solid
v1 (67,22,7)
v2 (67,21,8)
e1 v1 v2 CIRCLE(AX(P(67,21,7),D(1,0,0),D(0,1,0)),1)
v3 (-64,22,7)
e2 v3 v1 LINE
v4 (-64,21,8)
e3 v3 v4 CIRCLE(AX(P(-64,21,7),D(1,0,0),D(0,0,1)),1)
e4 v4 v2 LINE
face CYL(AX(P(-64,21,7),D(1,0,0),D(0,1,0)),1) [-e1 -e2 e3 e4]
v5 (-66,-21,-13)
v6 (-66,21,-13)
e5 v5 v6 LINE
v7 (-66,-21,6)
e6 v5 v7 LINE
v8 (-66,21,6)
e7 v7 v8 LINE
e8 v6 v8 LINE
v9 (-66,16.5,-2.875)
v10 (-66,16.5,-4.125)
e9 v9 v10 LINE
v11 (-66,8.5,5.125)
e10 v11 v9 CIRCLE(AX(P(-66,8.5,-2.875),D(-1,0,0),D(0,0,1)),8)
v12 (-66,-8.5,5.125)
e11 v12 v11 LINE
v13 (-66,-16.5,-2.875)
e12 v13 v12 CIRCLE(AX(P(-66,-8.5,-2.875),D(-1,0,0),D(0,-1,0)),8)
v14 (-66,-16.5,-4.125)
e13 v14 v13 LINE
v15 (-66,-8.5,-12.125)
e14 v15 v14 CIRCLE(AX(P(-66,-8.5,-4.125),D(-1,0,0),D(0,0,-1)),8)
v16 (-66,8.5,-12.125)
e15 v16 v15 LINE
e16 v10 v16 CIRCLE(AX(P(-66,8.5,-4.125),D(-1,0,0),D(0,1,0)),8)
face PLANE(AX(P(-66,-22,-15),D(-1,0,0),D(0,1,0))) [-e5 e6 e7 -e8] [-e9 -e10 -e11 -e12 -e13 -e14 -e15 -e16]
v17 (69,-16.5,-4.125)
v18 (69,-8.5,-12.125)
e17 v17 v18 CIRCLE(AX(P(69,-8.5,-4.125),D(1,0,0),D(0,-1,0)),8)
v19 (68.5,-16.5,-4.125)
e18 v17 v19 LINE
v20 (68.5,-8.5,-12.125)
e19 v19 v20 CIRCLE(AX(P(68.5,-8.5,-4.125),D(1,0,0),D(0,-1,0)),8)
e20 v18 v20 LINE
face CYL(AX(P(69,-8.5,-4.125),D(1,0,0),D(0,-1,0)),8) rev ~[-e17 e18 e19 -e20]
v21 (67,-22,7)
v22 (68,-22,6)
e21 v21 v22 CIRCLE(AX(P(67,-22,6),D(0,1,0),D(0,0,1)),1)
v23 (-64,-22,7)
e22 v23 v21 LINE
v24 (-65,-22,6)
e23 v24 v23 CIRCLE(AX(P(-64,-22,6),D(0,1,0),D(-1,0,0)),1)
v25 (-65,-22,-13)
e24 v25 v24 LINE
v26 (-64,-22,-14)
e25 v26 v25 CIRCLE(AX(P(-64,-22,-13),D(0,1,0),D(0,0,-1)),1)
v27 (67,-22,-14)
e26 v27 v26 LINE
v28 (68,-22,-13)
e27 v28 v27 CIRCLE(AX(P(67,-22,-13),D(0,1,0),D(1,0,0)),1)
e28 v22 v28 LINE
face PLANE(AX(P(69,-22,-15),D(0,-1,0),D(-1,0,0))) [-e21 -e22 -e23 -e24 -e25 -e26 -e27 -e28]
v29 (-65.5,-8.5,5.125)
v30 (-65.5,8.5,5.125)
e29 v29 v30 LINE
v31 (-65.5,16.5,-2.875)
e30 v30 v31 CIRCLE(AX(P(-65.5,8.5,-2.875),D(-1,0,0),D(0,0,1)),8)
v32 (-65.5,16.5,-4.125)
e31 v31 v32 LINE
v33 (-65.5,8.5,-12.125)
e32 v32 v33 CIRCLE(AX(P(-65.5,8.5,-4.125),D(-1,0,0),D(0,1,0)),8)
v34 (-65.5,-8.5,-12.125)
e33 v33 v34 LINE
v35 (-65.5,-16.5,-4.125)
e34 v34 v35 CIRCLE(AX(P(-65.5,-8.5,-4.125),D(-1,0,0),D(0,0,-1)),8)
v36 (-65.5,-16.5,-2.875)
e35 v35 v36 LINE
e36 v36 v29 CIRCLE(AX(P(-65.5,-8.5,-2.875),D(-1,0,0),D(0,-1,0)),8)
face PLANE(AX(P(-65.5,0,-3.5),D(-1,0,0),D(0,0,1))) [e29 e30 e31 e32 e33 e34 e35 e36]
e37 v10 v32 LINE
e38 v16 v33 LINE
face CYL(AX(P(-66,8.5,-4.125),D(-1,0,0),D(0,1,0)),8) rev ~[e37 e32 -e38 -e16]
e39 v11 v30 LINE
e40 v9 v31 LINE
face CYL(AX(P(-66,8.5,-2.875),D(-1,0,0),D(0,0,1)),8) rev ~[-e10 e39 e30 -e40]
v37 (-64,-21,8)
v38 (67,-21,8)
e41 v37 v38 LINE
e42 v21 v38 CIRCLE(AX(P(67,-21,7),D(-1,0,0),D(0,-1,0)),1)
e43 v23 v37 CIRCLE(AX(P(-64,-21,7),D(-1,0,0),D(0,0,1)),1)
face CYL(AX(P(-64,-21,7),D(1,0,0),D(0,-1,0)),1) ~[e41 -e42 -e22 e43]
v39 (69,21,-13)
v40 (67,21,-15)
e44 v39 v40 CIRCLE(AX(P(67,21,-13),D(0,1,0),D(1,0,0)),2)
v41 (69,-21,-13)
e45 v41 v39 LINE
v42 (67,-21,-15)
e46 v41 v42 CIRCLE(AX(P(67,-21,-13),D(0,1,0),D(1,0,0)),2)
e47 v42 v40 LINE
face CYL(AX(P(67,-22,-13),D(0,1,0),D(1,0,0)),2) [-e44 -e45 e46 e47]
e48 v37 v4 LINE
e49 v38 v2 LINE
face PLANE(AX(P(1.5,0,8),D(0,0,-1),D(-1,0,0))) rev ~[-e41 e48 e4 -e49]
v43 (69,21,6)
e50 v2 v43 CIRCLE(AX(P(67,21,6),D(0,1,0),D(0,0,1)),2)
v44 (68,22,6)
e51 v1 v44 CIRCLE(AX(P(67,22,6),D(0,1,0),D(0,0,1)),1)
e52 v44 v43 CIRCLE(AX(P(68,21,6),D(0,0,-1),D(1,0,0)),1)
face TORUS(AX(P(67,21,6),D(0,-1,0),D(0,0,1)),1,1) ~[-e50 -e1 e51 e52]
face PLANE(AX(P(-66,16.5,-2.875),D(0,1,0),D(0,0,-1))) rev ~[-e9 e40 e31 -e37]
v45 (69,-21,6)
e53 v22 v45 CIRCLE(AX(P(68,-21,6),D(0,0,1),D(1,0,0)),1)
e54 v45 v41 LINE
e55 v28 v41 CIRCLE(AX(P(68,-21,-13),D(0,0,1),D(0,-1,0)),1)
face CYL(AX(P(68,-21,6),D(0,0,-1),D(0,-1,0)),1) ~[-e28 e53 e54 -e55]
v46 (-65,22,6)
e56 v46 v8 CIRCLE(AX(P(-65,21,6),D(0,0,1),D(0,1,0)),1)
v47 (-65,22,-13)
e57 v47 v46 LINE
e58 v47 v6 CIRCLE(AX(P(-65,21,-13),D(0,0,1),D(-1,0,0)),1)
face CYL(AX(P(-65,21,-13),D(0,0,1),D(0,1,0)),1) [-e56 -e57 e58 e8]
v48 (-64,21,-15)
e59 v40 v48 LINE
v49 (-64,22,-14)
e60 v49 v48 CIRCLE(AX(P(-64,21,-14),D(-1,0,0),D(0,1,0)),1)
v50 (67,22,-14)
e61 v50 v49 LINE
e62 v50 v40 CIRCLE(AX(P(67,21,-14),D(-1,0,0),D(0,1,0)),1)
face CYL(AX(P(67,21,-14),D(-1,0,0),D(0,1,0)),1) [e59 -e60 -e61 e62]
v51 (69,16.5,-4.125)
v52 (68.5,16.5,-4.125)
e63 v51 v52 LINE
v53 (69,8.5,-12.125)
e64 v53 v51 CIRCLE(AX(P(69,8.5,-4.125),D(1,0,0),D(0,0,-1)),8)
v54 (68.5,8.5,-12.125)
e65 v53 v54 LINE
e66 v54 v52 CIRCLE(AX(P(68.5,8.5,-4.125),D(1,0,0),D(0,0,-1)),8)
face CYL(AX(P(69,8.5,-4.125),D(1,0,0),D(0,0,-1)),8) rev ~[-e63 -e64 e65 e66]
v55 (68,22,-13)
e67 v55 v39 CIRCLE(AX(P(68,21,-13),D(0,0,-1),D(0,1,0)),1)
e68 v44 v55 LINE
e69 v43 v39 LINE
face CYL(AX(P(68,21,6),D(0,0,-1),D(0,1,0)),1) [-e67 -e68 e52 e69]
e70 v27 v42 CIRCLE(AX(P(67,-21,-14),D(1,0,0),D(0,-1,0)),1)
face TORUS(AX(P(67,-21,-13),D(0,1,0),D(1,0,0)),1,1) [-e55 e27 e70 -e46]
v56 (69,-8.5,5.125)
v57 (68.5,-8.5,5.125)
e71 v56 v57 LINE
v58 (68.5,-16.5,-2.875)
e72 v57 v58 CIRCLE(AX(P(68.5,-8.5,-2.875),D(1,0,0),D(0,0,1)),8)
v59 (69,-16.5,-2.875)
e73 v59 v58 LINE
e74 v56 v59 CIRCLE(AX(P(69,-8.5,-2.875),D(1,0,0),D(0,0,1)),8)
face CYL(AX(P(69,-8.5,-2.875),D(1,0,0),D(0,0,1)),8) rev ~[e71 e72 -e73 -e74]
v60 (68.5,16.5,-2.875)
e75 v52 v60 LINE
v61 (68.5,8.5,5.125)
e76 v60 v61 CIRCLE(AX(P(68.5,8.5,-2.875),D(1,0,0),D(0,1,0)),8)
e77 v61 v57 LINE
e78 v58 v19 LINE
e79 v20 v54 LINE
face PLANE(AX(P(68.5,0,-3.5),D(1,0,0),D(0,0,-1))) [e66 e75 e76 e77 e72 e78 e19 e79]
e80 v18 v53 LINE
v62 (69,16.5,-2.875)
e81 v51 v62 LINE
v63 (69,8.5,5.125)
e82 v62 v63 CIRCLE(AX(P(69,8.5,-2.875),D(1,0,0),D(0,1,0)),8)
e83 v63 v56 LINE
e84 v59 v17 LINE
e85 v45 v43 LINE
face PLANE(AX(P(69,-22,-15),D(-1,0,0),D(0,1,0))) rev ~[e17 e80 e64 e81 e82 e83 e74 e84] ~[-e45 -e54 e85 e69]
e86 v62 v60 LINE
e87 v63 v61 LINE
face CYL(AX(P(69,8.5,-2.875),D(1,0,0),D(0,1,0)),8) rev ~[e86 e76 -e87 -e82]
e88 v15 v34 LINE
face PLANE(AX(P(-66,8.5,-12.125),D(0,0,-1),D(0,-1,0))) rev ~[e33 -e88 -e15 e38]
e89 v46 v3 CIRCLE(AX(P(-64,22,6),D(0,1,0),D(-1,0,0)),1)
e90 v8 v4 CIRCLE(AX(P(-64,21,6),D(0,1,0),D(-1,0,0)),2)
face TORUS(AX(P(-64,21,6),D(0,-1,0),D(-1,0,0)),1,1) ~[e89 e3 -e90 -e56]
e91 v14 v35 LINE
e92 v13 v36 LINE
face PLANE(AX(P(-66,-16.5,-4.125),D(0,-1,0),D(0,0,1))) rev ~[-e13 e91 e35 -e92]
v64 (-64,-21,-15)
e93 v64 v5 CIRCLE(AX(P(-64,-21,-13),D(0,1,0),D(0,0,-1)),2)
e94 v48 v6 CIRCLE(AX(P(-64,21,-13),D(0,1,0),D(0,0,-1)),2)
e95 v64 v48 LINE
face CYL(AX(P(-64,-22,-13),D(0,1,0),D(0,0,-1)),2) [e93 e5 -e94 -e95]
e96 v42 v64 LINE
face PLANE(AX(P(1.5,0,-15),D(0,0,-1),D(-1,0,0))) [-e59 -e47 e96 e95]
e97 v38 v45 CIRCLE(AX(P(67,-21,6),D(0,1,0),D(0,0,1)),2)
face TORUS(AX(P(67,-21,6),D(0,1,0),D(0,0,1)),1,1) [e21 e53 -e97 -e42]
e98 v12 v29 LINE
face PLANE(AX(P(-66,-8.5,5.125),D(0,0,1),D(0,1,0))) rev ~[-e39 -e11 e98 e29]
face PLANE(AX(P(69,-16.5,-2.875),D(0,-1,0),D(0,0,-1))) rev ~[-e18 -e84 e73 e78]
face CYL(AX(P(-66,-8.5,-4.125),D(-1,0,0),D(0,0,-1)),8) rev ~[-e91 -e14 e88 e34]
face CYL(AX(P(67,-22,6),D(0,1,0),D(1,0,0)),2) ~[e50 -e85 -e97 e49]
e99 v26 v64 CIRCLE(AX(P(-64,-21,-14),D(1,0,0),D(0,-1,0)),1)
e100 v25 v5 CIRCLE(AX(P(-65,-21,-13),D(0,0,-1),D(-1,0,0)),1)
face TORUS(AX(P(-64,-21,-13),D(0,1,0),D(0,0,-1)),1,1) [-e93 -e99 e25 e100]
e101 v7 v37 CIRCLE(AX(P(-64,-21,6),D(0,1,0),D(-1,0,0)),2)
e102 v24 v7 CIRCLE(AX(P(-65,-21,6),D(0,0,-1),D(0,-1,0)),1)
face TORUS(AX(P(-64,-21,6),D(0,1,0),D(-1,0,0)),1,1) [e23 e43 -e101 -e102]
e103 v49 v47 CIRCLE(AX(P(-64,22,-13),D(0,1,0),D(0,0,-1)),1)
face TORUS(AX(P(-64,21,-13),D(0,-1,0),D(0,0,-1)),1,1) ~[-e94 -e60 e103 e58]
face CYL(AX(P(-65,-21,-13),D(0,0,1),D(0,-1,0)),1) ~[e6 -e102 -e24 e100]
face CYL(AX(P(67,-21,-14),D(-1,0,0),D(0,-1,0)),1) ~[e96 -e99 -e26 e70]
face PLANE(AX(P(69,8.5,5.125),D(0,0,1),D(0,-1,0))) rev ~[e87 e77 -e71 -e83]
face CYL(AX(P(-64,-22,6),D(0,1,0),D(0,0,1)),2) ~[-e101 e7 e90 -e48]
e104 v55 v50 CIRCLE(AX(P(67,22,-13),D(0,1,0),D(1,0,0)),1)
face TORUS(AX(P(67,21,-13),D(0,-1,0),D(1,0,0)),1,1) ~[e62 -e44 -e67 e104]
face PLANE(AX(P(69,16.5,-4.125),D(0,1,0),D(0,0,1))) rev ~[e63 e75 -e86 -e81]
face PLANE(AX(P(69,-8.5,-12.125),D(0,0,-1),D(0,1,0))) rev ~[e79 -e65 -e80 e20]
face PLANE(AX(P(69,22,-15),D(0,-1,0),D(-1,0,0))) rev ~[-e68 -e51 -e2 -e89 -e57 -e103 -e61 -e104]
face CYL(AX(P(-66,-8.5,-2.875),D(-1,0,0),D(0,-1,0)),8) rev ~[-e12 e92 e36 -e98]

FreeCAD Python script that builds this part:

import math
import FreeCAD as App
import Part
import Sketcher
from FreeCAD import Vector
Q = App.Units.Quantity


def edges_at(feature, points):
    """Names of the edges that pass closest to the given points."""
    edges = feature.Shape.Edges
    near = lambda p: min(range(len(edges)), key=lambda i: edges[i].distToShape(Part.Vertex(*p))[0])
    return sorted({f"Edge{near(p) + 1}" for p in points})

doc = App.newDocument("Part")
body = doc.addObject("PartDesign::Body", "Body")

sketch1 = doc.addObject("Sketcher::SketchObject", "Sketch")
body.addObject(sketch1)
sketch1.AttachmentSupport = (doc.XY_Plane, [""])
sketch1.MapMode = "FlatFace"
sketch1.AttachmentOffset = App.Placement(Vector(0, 0, -15), App.Rotation())
sketch1.addGeometry([
    Part.LineSegment(Vector(69, 22, 0), Vector(69, -22, 0)),
    Part.LineSegment(Vector(69, -22, 0), Vector(-66, -22, 0)),
    Part.LineSegment(Vector(-66, -22, 0), Vector(-66, 22, 0)),
    Part.LineSegment(Vector(-66, 22, 0), Vector(69, 22, 0)),
], False)
sketch1.addConstraint([
    Sketcher.Constraint("Coincident", 0, 2, 1, 1),
    Sketcher.Constraint("Coincident", 1, 2, 2, 1),
    Sketcher.Constraint("Coincident", 2, 2, 3, 1),
    Sketcher.Constraint("Coincident", 3, 2, 0, 1),
    Sketcher.Constraint("Vertical", 0),
    Sketcher.Constraint("Horizontal", 1),
    Sketcher.Constraint("Vertical", 2),
    Sketcher.Constraint("Horizontal", 3),
    Sketcher.Constraint("DistanceX", 1, 2, 1, 1, Q("135 mm")),
    Sketcher.Constraint("DistanceY", 0, 2, 0, 1, Q("44 mm")),
    Sketcher.Constraint("DistanceX", -1, 1, 0, 2, Q("69 mm")),
    Sketcher.Constraint("DistanceY", 0, 2, -1, 1, Q("22 mm")),
])
pad1 = doc.addObject("PartDesign::Pad", "Pad")
body.addObject(pad1)
pad1.Profile = sketch1
pad1.Length = 23

sketch2 = doc.addObject("Sketcher::SketchObject", "Sketch001")
body.addObject(sketch2)
sketch2.AttachmentSupport = (doc.YZ_Plane, [""])
sketch2.MapMode = "FlatFace"
sketch2.AttachmentOffset = App.Placement(Vector(0, 0, 69), App.Rotation())
sketch2.addGeometry([
    Part.LineSegment(Vector(8.5, 5.125, 0), Vector(-8.5, 5.125, 0)),
    Part.ArcOfCircle(Part.Circle(Vector(-8.5, -2.875, 0), Vector(0, 0, 1), 8), math.radians(90), math.radians(180)),
    Part.LineSegment(Vector(-16.5, -2.875, 0), Vector(-16.5, -4.125, 0)),
    Part.ArcOfCircle(Part.Circle(Vector(-8.5, -4.125, 0), Vector(0, 0, 1), 8), math.radians(-180), math.radians(-90)),
    Part.LineSegment(Vector(-8.5, -12.125, 0), Vector(8.5, -12.125, 0)),
    Part.ArcOfCircle(Part.Circle(Vector(8.5, -4.125, 0), Vector(0, 0, 1), 8), math.radians(-90), math.radians(0)),
    Part.LineSegment(Vector(16.5, -4.125, 0), Vector(16.5, -2.875, 0)),
    Part.ArcOfCircle(Part.Circle(Vector(8.5, -2.875, 0), Vector(0, 0, 1), 8), math.radians(0), math.radians(90)),
], False)
sketch2.addConstraint([
    Sketcher.Constraint("Tangent", 0, 2, 1, 1),
    Sketcher.Constraint("Tangent", 1, 2, 2, 1),
    Sketcher.Constraint("Tangent", 2, 2, 3, 1),
    Sketcher.Constraint("Tangent", 3, 2, 4, 1),
    Sketcher.Constraint("Tangent", 4, 2, 5, 1),
    Sketcher.Constraint("Tangent", 5, 2, 6, 1),
    Sketcher.Constraint("Tangent", 6, 2, 7, 1),
    Sketcher.Constraint("Tangent", 7, 2, 0, 1),
    Sketcher.Constraint("Horizontal", 0),
    Sketcher.Constraint("Vertical", 2),
    Sketcher.Constraint("Horizontal", 4),
    Sketcher.Constraint("Vertical", 6),
    Sketcher.Constraint("Equal", 1, 3),
    Sketcher.Constraint("Equal", 3, 5),
    Sketcher.Constraint("Equal", 5, 7),
    Sketcher.Constraint("Radius", 1, Q("8 mm")),
    Sketcher.Constraint("DistanceX", 0, 2, 0, 1, Q("17 mm")),
    Sketcher.Constraint("DistanceY", 2, 2, 2, 1, Q("1.25 mm")),
    Sketcher.Constraint("DistanceX", 1, 3, -1, 1, Q("8.5 mm")),
    Sketcher.Constraint("DistanceY", 1, 3, -1, 1, Q("2.875 mm")),
])
pocket1 = doc.addObject("PartDesign::Pocket", "Pocket")
body.addObject(pocket1)
pocket1.Profile = sketch2
pocket1.Length = 0.5

sketch3 = doc.addObject("Sketcher::SketchObject", "Sketch002")
body.addObject(sketch3)
sketch3.AttachmentSupport = (doc.YZ_Plane, [""])
sketch3.MapMode = "FlatFace"
sketch3.AttachmentOffset = App.Placement(Vector(0, 0, -66), App.Rotation())
sketch3.addGeometry([
    Part.LineSegment(Vector(16.5, -2.875, 0), Vector(16.5, -4.125, 0)),
    Part.ArcOfCircle(Part.Circle(Vector(8.5, -4.125, 0), Vector(0, 0, 1), 8), math.radians(-90), math.radians(0)),
    Part.LineSegment(Vector(8.5, -12.125, 0), Vector(-8.5, -12.125, 0)),
    Part.ArcOfCircle(Part.Circle(Vector(-8.5, -4.125, 0), Vector(0, 0, 1), 8), math.radians(-180), math.radians(-90)),
    Part.LineSegment(Vector(-16.5, -4.125, 0), Vector(-16.5, -2.875, 0)),
    Part.ArcOfCircle(Part.Circle(Vector(-8.5, -2.875, 0), Vector(0, 0, 1), 8), math.radians(90), math.radians(180)),
    Part.LineSegment(Vector(-8.5, 5.125, 0), Vector(8.5, 5.125, 0)),
    Part.ArcOfCircle(Part.Circle(Vector(8.5, -2.875, 0), Vector(0, 0, 1), 8), math.radians(0), math.radians(90)),
], False)
sketch3.addConstraint([
    Sketcher.Constraint("Tangent", 0, 2, 1, 2),
    Sketcher.Constraint("Tangent", 1, 1, 2, 1),
    Sketcher.Constraint("Tangent", 2, 2, 3, 2),
    Sketcher.Constraint("Tangent", 3, 1, 4, 1),
    Sketcher.Constraint("Tangent", 4, 2, 5, 2),
    Sketcher.Constraint("Tangent", 5, 1, 6, 1),
    Sketcher.Constraint("Tangent", 6, 2, 7, 2),
    Sketcher.Constraint("Tangent", 7, 1, 0, 1),
    Sketcher.Constraint("Vertical", 0),
    Sketcher.Constraint("Horizontal", 2),
    Sketcher.Constraint("Vertical", 4),
    Sketcher.Constraint("Horizontal", 6),
    Sketcher.Constraint("Equal", 1, 3),
    Sketcher.Constraint("Equal", 3, 5),
    Sketcher.Constraint("Equal", 5, 7),
    Sketcher.Constraint("Radius", 1, Q("8 mm")),
    Sketcher.Constraint("DistanceX", 2, 2, 2, 1, Q("17 mm")),
    Sketcher.Constraint("DistanceY", 0, 2, 0, 1, Q("1.25 mm")),
    Sketcher.Constraint("DistanceX", -1, 1, 1, 3, Q("8.5 mm")),
    Sketcher.Constraint("DistanceY", 1, 3, -1, 1, Q("4.125 mm")),
])
pocket2 = doc.addObject("PartDesign::Pocket", "Pocket001")
body.addObject(pocket2)
pocket2.Profile = sketch3
pocket2.Length = 0.5
pocket2.Reversed = True
doc.recompute()

fillet = doc.addObject("PartDesign::Fillet", "Fillet")
body.addObject(fillet)
fillet.Base = (pocket2, edges_at(pocket2, [
    (-66, 0, 8),
    (69, 0, 8),
    (-66, 0, -15),
    (69, 0, -15),
]))
fillet.Radius = 2
doc.recompute()

fillet2 = doc.addObject("PartDesign::Fillet", "Fillet001")
body.addObject(fillet2)
fillet2.Base = (fillet, edges_at(fillet, [
    (1.5, -22, -15),
    (1.5, 22, -15),
    (-66, 22, -3.5),
    (1.5, 22, 8),
    (69, 22, -3.5),
    (68.414, 22, 7.414),
    (68.414, 22, -14.414),
    (-65.414, 22, 7.414),
    (-65.414, 22, -14.414),
    (-66, -22, -3.5),
    (69, -22, -3.5),
    (1.5, -22, 8),
    (68.414, -22, 7.414),
    (68.414, -22, -14.414),
    (-65.414, -22, 7.414),
    (-65.414, -22, -14.414),
]))
fillet2.Radius = 1

doc.recompute()
